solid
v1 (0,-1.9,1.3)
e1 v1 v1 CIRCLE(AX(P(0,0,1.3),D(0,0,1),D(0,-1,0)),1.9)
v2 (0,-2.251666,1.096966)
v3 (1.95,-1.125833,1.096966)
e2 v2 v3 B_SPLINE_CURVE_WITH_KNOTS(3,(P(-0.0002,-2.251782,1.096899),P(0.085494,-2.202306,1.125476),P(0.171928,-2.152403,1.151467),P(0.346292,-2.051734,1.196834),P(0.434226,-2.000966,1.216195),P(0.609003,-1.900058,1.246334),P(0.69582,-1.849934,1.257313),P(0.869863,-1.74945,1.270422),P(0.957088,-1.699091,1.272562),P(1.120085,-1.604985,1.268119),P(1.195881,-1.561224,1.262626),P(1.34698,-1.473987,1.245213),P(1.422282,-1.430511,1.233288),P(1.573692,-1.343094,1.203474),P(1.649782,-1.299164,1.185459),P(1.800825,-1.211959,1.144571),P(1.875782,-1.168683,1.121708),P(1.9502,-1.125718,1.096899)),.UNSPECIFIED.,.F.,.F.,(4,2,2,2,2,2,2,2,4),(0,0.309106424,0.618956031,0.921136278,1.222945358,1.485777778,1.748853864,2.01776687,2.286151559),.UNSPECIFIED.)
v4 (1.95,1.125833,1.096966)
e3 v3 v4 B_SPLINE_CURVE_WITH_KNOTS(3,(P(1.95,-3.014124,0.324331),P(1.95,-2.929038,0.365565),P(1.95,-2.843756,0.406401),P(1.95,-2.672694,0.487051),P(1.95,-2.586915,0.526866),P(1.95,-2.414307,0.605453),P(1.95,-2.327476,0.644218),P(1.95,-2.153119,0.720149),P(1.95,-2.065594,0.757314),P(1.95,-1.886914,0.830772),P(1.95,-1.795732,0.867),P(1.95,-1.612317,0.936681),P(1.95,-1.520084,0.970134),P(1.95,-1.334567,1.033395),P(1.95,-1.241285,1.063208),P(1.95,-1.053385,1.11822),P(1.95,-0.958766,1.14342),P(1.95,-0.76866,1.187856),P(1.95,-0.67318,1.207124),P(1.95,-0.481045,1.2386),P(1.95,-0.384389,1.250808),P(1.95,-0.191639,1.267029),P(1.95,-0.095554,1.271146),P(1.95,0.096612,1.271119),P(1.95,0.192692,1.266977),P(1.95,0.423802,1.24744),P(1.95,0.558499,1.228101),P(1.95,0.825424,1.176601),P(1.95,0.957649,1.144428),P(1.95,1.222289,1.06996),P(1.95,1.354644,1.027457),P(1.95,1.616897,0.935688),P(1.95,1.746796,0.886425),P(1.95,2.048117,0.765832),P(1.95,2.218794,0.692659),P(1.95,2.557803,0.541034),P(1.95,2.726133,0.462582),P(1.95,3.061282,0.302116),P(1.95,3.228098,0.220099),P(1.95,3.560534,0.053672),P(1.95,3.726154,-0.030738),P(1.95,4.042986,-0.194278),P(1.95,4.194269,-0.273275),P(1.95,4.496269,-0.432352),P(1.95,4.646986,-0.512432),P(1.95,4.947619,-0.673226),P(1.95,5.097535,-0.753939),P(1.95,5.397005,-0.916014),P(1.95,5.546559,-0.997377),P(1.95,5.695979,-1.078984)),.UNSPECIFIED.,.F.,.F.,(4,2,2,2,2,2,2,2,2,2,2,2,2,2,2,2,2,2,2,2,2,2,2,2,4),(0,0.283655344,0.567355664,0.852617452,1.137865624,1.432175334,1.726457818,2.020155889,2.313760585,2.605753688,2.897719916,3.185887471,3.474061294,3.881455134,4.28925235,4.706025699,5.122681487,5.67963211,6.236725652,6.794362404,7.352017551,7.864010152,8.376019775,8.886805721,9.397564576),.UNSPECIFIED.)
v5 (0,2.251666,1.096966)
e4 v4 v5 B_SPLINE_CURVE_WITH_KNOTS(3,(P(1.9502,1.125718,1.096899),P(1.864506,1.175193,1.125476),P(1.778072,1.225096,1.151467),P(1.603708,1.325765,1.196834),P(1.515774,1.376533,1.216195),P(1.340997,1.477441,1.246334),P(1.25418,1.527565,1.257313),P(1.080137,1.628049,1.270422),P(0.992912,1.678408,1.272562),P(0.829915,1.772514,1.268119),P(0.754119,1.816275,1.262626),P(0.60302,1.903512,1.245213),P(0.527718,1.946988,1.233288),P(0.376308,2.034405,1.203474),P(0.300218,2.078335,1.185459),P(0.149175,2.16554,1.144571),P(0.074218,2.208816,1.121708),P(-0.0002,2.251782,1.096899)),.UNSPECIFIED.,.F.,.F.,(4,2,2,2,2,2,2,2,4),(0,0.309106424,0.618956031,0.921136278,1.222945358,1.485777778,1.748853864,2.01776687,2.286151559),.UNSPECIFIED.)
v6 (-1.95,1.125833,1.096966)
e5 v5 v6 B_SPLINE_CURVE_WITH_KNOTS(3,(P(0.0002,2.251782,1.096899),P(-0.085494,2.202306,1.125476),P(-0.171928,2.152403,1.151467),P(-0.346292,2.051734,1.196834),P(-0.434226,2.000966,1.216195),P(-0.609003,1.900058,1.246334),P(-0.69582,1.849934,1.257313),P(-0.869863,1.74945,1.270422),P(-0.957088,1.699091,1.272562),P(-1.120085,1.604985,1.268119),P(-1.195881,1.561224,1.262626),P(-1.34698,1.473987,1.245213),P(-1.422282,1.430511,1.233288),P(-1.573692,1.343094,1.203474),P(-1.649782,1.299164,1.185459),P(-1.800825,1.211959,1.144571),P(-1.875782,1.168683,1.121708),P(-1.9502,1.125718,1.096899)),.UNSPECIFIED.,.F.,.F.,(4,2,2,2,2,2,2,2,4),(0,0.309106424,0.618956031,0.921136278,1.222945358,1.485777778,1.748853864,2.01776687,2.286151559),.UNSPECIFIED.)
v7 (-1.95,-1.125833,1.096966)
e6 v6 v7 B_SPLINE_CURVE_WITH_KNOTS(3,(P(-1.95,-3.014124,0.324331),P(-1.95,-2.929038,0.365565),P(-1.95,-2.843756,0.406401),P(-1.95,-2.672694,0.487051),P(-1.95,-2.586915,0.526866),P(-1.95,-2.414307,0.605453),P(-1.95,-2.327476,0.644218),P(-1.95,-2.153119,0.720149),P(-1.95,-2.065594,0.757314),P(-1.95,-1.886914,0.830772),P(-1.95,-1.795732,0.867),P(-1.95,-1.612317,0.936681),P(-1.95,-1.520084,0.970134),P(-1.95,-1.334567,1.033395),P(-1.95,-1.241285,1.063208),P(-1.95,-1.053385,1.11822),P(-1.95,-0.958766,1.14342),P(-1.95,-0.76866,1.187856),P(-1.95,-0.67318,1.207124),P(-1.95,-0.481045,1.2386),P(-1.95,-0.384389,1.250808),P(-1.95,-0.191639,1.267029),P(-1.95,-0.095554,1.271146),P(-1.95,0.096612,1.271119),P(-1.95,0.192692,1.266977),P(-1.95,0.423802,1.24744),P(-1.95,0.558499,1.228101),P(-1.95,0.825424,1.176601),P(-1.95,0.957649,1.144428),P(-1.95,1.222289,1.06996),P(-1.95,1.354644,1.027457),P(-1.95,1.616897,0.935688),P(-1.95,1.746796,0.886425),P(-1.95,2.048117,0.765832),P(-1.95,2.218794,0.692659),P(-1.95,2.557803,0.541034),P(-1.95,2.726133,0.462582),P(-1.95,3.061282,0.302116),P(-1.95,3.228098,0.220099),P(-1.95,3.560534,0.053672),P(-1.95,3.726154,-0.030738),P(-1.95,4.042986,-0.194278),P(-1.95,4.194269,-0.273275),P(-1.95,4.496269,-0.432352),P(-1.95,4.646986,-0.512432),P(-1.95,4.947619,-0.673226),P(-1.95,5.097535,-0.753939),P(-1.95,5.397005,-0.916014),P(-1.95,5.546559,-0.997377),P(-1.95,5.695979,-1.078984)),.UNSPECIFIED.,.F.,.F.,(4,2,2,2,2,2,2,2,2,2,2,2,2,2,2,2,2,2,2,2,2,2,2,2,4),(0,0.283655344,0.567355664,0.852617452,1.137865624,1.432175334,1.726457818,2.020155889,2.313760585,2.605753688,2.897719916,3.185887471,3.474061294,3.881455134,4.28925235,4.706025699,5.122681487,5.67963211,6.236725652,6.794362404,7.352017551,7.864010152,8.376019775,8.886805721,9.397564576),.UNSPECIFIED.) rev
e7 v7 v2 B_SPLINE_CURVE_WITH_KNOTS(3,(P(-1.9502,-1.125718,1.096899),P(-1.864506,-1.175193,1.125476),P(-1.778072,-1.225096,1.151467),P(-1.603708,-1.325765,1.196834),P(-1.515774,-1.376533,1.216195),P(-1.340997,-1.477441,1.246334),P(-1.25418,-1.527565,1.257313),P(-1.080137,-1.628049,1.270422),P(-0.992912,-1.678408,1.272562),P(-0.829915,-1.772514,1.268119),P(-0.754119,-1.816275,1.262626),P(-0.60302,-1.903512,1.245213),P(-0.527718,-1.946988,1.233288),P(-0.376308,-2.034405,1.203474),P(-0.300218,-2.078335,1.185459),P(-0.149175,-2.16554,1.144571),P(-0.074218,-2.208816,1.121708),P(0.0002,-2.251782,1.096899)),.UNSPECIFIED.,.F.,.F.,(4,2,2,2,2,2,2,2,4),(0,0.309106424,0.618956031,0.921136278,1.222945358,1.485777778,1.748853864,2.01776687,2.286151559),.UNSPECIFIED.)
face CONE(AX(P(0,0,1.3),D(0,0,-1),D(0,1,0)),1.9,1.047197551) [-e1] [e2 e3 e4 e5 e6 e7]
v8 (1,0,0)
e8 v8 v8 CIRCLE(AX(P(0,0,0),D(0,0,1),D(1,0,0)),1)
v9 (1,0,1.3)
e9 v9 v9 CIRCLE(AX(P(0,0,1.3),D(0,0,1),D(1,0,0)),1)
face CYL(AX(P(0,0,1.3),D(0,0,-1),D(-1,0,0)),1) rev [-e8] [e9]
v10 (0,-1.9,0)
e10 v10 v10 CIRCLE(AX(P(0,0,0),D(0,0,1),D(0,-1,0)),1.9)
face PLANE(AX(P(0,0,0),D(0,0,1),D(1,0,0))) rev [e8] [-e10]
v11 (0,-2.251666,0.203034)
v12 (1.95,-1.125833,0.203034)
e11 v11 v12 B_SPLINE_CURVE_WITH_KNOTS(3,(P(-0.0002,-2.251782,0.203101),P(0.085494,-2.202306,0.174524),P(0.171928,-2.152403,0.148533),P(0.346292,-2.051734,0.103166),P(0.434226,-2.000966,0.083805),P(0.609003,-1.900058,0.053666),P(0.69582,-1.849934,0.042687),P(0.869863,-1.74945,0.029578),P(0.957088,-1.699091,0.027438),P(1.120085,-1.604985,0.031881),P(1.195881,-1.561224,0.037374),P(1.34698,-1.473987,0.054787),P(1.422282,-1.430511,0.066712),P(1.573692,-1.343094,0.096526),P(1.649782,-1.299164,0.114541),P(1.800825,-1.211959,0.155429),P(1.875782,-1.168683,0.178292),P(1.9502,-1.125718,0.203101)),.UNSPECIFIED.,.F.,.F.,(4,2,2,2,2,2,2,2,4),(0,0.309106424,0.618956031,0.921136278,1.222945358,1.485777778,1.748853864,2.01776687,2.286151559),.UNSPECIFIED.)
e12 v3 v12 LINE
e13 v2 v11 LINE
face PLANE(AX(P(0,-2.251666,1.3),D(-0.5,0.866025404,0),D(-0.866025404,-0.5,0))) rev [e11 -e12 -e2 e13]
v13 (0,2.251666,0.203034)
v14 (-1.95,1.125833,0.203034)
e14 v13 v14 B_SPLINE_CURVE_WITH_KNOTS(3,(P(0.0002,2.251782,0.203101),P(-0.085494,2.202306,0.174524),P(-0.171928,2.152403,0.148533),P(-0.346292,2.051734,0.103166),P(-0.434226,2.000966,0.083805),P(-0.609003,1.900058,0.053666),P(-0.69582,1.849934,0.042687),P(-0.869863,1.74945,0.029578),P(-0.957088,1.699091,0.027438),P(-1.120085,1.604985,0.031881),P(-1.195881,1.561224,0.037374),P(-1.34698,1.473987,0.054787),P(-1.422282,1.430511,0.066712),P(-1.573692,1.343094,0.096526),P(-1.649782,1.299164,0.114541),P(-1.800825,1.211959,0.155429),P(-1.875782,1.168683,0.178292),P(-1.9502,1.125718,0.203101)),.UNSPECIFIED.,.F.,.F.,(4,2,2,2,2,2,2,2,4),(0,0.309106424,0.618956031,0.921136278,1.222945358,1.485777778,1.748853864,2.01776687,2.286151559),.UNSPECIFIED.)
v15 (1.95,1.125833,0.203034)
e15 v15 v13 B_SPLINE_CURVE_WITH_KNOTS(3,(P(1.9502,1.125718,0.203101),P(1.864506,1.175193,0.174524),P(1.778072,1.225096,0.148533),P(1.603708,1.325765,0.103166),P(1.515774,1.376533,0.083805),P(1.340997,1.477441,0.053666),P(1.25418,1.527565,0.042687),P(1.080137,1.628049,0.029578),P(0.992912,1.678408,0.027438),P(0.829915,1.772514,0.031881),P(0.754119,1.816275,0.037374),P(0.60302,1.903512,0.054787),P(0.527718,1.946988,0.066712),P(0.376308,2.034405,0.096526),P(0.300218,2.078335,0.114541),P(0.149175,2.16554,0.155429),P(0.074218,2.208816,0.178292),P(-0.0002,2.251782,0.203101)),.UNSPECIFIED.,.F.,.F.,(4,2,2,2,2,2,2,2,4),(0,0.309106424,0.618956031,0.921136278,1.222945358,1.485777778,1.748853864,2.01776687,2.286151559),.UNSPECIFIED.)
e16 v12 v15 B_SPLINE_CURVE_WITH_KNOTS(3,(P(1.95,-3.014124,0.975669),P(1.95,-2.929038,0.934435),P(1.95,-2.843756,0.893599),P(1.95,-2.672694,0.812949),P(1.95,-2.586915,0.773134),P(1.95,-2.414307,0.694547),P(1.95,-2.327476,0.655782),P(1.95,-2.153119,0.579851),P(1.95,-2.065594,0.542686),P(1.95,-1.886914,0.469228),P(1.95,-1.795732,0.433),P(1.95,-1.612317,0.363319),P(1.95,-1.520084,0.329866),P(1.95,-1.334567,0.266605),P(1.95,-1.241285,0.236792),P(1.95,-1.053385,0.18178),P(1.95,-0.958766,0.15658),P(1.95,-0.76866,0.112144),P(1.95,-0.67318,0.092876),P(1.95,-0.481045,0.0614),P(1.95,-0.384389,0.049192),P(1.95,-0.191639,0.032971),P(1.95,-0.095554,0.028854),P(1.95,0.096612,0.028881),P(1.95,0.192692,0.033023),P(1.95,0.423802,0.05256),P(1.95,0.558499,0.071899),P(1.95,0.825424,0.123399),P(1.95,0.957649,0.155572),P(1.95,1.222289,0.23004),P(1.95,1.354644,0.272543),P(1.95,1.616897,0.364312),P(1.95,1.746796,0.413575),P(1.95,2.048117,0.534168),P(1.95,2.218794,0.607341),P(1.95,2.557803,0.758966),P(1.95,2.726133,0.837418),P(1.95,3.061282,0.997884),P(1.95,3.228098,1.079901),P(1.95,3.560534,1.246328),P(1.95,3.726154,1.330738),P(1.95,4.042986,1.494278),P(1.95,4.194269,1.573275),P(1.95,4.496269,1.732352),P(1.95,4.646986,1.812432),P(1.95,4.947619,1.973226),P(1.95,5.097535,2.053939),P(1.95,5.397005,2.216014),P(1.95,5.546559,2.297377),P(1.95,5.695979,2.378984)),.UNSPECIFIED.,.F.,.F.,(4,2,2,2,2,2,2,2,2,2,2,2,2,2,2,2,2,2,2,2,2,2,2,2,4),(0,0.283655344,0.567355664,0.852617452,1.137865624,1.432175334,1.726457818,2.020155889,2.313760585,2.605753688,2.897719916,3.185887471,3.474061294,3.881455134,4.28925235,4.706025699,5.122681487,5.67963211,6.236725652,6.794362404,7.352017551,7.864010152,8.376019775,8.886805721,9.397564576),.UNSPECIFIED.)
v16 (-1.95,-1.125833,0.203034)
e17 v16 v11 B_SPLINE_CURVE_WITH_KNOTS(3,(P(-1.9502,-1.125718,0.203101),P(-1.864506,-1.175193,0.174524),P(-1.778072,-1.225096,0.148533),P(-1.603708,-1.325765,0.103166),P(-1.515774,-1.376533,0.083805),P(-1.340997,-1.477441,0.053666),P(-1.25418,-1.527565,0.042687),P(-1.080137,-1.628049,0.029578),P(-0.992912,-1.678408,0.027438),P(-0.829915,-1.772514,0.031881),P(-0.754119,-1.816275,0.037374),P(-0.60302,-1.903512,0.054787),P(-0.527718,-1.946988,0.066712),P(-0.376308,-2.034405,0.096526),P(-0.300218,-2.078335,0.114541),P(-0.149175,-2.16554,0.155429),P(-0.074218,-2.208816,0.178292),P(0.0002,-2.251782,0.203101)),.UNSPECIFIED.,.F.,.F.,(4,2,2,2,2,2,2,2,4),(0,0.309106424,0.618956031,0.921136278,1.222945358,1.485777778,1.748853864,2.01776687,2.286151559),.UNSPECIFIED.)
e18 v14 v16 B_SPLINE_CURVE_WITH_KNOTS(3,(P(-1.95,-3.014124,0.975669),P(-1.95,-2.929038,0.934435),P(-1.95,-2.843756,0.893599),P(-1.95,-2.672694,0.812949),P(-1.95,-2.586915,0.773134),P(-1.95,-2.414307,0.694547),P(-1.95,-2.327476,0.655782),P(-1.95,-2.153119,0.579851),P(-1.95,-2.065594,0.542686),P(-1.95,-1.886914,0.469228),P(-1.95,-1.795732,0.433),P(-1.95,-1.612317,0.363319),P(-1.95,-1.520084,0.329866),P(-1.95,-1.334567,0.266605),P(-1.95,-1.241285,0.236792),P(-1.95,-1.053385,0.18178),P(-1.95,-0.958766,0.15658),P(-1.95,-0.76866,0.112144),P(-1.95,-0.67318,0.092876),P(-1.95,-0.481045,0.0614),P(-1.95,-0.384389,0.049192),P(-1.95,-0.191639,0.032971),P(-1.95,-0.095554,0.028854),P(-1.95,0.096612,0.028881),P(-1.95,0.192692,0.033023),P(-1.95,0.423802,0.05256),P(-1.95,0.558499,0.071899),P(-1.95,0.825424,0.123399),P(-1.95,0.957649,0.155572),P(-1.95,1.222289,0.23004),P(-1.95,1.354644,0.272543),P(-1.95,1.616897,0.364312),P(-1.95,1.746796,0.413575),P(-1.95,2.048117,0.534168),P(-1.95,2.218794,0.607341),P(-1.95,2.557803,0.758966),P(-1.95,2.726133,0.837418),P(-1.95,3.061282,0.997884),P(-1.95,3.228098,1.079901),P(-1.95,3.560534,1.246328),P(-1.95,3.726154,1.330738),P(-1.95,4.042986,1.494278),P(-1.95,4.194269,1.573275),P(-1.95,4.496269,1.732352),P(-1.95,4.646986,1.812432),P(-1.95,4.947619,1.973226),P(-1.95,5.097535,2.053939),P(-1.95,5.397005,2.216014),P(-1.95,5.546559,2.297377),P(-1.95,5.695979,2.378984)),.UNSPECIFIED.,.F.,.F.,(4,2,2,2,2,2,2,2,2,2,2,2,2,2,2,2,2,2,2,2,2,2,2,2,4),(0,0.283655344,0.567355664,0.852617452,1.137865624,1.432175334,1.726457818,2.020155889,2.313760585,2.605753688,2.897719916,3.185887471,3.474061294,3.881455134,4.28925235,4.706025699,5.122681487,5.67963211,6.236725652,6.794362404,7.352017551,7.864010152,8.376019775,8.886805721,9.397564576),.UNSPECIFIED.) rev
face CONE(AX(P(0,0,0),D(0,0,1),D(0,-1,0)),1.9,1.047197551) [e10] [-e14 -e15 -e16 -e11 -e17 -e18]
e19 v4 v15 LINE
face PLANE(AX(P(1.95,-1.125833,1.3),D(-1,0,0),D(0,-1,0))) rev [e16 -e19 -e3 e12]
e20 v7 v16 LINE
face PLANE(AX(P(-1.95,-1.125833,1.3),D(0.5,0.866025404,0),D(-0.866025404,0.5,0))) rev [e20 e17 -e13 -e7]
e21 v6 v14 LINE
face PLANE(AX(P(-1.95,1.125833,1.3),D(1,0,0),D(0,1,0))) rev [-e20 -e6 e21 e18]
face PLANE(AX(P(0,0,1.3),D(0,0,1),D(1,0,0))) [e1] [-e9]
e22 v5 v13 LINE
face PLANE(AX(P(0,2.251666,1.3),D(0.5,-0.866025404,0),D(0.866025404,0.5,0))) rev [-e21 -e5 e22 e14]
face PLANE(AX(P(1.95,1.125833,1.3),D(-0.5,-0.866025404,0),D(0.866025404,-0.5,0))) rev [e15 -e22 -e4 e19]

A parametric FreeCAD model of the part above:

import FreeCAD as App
import Part
import Sketcher
from FreeCAD import Vector
Q = App.Units.Quantity

doc = App.newDocument("Part")
body = doc.addObject("PartDesign::Body", "Body")

# Sketch on XY plane
sketch1 = doc.addObject("Sketcher::SketchObject", "Sketch")
body.addObject(sketch1)
sketch1.AttachmentSupport = (doc.XY_Plane, [""])
sketch1.MapMode = "FlatFace"
sketch1.addGeometry(Part.LineSegment(Vector(0, 2.3, 0), Vector(-1.9, 1.1, 0)), False)
sketch1.addGeometry(Part.LineSegment(Vector(-1.9, 1.1, 0), Vector(-1.9, -1.1, 0)), False)
sketch1.addGeometry(Part.LineSegment(Vector(-1.9, -1.1, 0), Vector(0, -2.3, 0)), False)
sketch1.addGeometry(Part.LineSegment(Vector(0, -2.3, 0), Vector(1.9, -1.1, 0)), False)
sketch1.addGeometry(Part.LineSegment(Vector(1.9, -1.1, 0), Vector(1.9, 1.1, 0)), False)
sketch1.addGeometry(Part.LineSegment(Vector(1.9, 1.1, 0), Vector(0, 2.3, 0)), False)
sketch1.addGeometry(Part.Circle(Vector(0, 0, 0), Vector(0, 0, 1), 1), False)
sketch1.addConstraint(Sketcher.Constraint("Coincident", 0, 2, 1, 1))
sketch1.addConstraint(Sketcher.Constraint("Coincident", 1, 2, 2, 1))
sketch1.addConstraint(Sketcher.Constraint("Coincident", 2, 2, 3, 1))
sketch1.addConstraint(Sketcher.Constraint("Coincident", 3, 2, 4, 1))
sketch1.addConstraint(Sketcher.Constraint("Coincident", 4, 2, 5, 1))
sketch1.addConstraint(Sketcher.Constraint("Coincident", 5, 2, 0, 1))
sketch1.addConstraint(Sketcher.Constraint("Vertical", 1))
sketch1.addConstraint(Sketcher.Constraint("Vertical", 4))
sketch1.addConstraint(Sketcher.Constraint("Coincident", 6, 3, -1, 1))
sketch1.addConstraint(Sketcher.Constraint("Symmetric", 0, 2, 3, 2, -1, 1))
sketch1.addConstraint(Sketcher.Constraint("Symmetric", 2, 2, 5, 2, -1, 1))
sketch1.addConstraint(Sketcher.Constraint("PointOnObject", 2, 2, -2))
sketch1.addConstraint(Sketcher.Constraint("Parallel", 2, 5))
sketch1.addConstraint(Sketcher.Constraint("Horizontal", 1, 2, 3, 2))
sketch1.addConstraint(Sketcher.Constraint("Diameter", 6, 2.0))
sketch1.addConstraint(Sketcher.Constraint("Angle", 0, Q("-150 deg")))
sketch1.addConstraint(Sketcher.Constraint("DistanceX", 1, 2, 3, 2, 3.9))
sketch1.addConstraint(Sketcher.Constraint("DistanceY", 2, 2, 0, 2, 3.377499))
pad1 = doc.addObject("PartDesign::Pad", "Pad")
body.addObject(pad1)
pad1.Profile = sketch1
pad1.Length = 1.3

# Sketch on YZ plane
sketch2 = doc.addObject("Sketcher::SketchObject", "Sketch001")
body.addObject(sketch2)
sketch2.AttachmentSupport = (doc.YZ_Plane, [""])
sketch2.MapMode = "FlatFace"
sketch2.addGeometry(Part.LineSegment(Vector(1.9, 1.3, 0), Vector(2.65, 0.87, 0)), False)
sketch2.addGeometry(Part.LineSegment(Vector(2.65, 0.87, 0), Vector(2.65, 1.3, 0)), False)
sketch2.addGeometry(Part.LineSegment(Vector(2.65, 1.3, 0), Vector(1.9, 1.3, 0)), False)
sketch2.addGeometry(Part.LineSegment(Vector(2.65, 0.43, 0), Vector(1.9, 0, 0)), False)
sketch2.addGeometry(Part.LineSegment(Vector(1.9, 0, 0), Vector(2.65, 0, 0)), False)
sketch2.addGeometry(Part.LineSegment(Vector(2.65, 0, 0), Vector(2.65, 0.43, 0)), False)
sketch2.addConstraint(Sketcher.Constraint("Coincident", 0, 2, 1, 1))
sketch2.addConstraint(Sketcher.Constraint("Coincident", 1, 2, 2, 1))
sketch2.addConstraint(Sketcher.Constraint("Coincident", 2, 2, 0, 1))
sketch2.addConstraint(Sketcher.Constraint("Coincident", 3, 2, 4, 1))
sketch2.addConstraint(Sketcher.Constraint("Coincident", 4, 2, 5, 1))
sketch2.addConstraint(Sketcher.Constraint("Coincident", 5, 2, 3, 1))
sketch2.addConstraint(Sketcher.Constraint("Vertical", 1))
sketch2.addConstraint(Sketcher.Constraint("Horizontal", 2))
sketch2.addConstraint(Sketcher.Constraint("Horizontal", 4))
sketch2.addConstraint(Sketcher.Constraint("Vertical", 5))
sketch2.addConstraint(Sketcher.Constraint("PointOnObject", 3, 2, -1))
sketch2.addConstraint(Sketcher.Constraint("Vertical", 2, 2, 3, 2))
sketch2.addConstraint(Sketcher.Constraint("Vertical", 1, 2, 4, 2))
sketch2.addConstraint(Sketcher.Constraint("Equal", 1, 5))
sketch2.addConstraint(Sketcher.Constraint("Angle", 0, Q("-30 deg")))
sketch2.addConstraint(Sketcher.Constraint("DistanceY", -1, 1, 1, 2, 1.3))
sketch2.addConstraint(Sketcher.Constraint("DistanceX", -1, 1, 2, 2, 1.9))
sketch2.addConstraint(Sketcher.Constraint("DistanceY", 1, 1, 1, 2, 0.434901))
groove = doc.addObject("PartDesign::Groove", "Groove")
body.addObject(groove)
groove.Profile = sketch2
groove.ReferenceAxis = (sketch2, ["V_Axis"])
groove.Angle = 360

doc.recompute()
